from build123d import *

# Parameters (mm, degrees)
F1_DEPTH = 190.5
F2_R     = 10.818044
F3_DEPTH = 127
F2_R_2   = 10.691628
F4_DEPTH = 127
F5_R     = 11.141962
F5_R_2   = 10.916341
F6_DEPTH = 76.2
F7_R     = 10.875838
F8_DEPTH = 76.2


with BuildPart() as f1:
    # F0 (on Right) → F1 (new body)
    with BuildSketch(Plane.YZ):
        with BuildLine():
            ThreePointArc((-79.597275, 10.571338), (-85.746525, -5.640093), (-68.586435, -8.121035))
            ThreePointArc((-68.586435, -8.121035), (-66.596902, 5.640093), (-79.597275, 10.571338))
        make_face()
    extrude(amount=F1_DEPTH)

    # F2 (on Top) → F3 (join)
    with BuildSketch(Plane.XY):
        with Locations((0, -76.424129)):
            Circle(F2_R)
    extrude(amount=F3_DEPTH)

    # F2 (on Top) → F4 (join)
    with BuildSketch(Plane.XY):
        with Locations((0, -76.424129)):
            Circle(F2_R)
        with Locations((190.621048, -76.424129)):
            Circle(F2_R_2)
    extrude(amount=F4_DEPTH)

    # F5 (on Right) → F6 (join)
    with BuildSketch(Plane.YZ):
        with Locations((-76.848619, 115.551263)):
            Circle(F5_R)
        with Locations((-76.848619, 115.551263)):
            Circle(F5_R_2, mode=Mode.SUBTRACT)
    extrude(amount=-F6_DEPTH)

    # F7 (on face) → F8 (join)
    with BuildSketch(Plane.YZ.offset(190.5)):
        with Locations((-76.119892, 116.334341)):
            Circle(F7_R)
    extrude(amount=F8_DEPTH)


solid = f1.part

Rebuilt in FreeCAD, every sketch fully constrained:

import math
import FreeCAD as App
import Part
import Sketcher

V = App.Vector
Q = App.Units.Quantity

doc = App.newDocument("Part")
body = doc.addObject("PartDesign::Body", "Body")

# Sketch on YZ plane
sketch1 = body.newObject("Sketcher::SketchObject", "Sketch")
sketch1.AttachmentSupport = (doc.getObject("YZ_Plane"), [""])
sketch1.MapMode = "FlatFace"
sketch1.addGeometry(Part.ArcOfCircle(Part.Circle(V(-76, 0, 0), V(0, 0, 1), 11), math.radians(108), math.radians(313)), False)
sketch1.addGeometry(Part.ArcOfCircle(Part.Circle(V(-76, 0, 0), V(0, 0, 1), 11), math.radians(-47), math.radians(108)), False)
sketch1.addConstraint(Sketcher.Constraint("Tangent", 0, 1, 1, 2))
sketch1.addConstraint(Sketcher.Constraint("Coincident", 1, 1, 0, 2))
sketch1.addConstraint(Sketcher.Constraint("PointOnObject", 0, 3, -1))
sketch1.addConstraint(Sketcher.Constraint("Radius", 0, Q("0.4375 in")))
sketch1.addConstraint(Sketcher.Constraint("DistanceY", -1, 1, 0, 1, 10.571338))
sketch1.addConstraint(Sketcher.Constraint("DistanceX", 1, 3, 1, 1, 7.585278))
sketch1.addConstraint(Sketcher.Constraint("DistanceX", 0, 3, -1, 1, 76.171714))
pad1 = body.newObject("PartDesign::Pad", "Pad")
pad1.Profile = sketch1
pad1.Length = Q("7.5 in")

# Sketch on XY plane
sketch2 = body.newObject("Sketcher::SketchObject", "Sketch001")
sketch2.AttachmentSupport = (doc.getObject("XY_Plane"), [""])
sketch2.MapMode = "FlatFace"
sketch2.addGeometry(Part.Circle(V(0, -76, 0), V(0, 0, 1), 11), False)
sketch2.addConstraint(Sketcher.Constraint("PointOnObject", 0, 3, -2))
sketch2.addConstraint(Sketcher.Constraint("Diameter", 0, 21.636088))
sketch2.addConstraint(Sketcher.Constraint("DistanceY", 0, 3, -1, 1, 76.424129))
pad2 = body.newObject("PartDesign::Pad", "Pad001")
pad2.Profile = sketch2
pad2.Length = Q("5 in")

# Sketch on XY plane
sketch3 = body.newObject("Sketcher::SketchObject", "Sketch002")
sketch3.AttachmentSupport = (doc.getObject("XY_Plane"), [""])
sketch3.MapMode = "FlatFace"
sketch3.addGeometry(Part.Circle(V(0, -76, 0), V(0, 0, 1), 11), False)
sketch3.addGeometry(Part.Circle(V(191, -76, 0), V(0, 0, 1), 11), False)
sketch3.addConstraint(Sketcher.Constraint("PointOnObject", 0, 3, -2))
sketch3.addConstraint(Sketcher.Constraint("Horizontal", 0, 3, 1, 3))
sketch3.addConstraint(Sketcher.Constraint("Diameter", 0, 21.636088))
sketch3.addConstraint(Sketcher.Constraint("Diameter", 1, 21.383256))
sketch3.addConstraint(Sketcher.Constraint("DistanceY", 0, 3, -1, 1, 76.424129))
sketch3.addConstraint(Sketcher.Constraint("DistanceX", -1, 1, 1, 3, 190.621048))
pad3 = body.newObject("PartDesign::Pad", "Pad002")
pad3.Profile = sketch3
pad3.Length = Q("5 in")

# Sketch on YZ plane
sketch4 = body.newObject("Sketcher::SketchObject", "Sketch003")
sketch4.AttachmentSupport = (doc.getObject("YZ_Plane"), [""])
sketch4.MapMode = "FlatFace"
sketch4.addGeometry(Part.Circle(V(-77, 116, 0), V(0, 0, 1), 11), False)
sketch4.addGeometry(Part.Circle(V(-77, 116, 0), V(0, 0, 1), 11), False)
sketch4.addConstraint(Sketcher.Constraint("Coincident", 1, 3, 0, 3))
sketch4.addConstraint(Sketcher.Constraint("Diameter", 1, 21.832682))
sketch4.addConstraint(Sketcher.Constraint("Diameter", 0, 22.283924))
sketch4.addConstraint(Sketcher.Constraint("DistanceX", 0, 3, -1, 1, 76.848619))
sketch4.addConstraint(Sketcher.Constraint("DistanceY", -1, 1, 0, 3, 115.551263))
pad4 = body.newObject("PartDesign::Pad", "Pad003")
pad4.Profile = sketch4
pad4.Length = Q("3 in")
pad4.Reversed = True

# Sketch on YZ plane
sketch5 = body.newObject("Sketcher::SketchObject", "Sketch004")
sketch5.AttachmentSupport = (doc.getObject("YZ_Plane"), [""])
sketch5.MapMode = "FlatFace"
sketch5.AttachmentOffset = App.Placement(V(0, 0, 7.5 * 25.4), App.Rotation())
sketch5.addGeometry(Part.Circle(V(-76, 116, 0), V(0, 0, 1), 11), False)
sketch5.addConstraint(Sketcher.Constraint("Diameter", 0, 21.751676))
sketch5.addConstraint(Sketcher.Constraint("DistanceX", 0, 3, -1, 1, 76.119892))
sketch5.addConstraint(Sketcher.Constraint("DistanceY", -1, 1, 0, 3, 116.334341))
pad5 = body.newObject("PartDesign::Pad", "Pad004")
pad5.Profile = sketch5
pad5.Length = Q("3 in")

doc.recompute()
